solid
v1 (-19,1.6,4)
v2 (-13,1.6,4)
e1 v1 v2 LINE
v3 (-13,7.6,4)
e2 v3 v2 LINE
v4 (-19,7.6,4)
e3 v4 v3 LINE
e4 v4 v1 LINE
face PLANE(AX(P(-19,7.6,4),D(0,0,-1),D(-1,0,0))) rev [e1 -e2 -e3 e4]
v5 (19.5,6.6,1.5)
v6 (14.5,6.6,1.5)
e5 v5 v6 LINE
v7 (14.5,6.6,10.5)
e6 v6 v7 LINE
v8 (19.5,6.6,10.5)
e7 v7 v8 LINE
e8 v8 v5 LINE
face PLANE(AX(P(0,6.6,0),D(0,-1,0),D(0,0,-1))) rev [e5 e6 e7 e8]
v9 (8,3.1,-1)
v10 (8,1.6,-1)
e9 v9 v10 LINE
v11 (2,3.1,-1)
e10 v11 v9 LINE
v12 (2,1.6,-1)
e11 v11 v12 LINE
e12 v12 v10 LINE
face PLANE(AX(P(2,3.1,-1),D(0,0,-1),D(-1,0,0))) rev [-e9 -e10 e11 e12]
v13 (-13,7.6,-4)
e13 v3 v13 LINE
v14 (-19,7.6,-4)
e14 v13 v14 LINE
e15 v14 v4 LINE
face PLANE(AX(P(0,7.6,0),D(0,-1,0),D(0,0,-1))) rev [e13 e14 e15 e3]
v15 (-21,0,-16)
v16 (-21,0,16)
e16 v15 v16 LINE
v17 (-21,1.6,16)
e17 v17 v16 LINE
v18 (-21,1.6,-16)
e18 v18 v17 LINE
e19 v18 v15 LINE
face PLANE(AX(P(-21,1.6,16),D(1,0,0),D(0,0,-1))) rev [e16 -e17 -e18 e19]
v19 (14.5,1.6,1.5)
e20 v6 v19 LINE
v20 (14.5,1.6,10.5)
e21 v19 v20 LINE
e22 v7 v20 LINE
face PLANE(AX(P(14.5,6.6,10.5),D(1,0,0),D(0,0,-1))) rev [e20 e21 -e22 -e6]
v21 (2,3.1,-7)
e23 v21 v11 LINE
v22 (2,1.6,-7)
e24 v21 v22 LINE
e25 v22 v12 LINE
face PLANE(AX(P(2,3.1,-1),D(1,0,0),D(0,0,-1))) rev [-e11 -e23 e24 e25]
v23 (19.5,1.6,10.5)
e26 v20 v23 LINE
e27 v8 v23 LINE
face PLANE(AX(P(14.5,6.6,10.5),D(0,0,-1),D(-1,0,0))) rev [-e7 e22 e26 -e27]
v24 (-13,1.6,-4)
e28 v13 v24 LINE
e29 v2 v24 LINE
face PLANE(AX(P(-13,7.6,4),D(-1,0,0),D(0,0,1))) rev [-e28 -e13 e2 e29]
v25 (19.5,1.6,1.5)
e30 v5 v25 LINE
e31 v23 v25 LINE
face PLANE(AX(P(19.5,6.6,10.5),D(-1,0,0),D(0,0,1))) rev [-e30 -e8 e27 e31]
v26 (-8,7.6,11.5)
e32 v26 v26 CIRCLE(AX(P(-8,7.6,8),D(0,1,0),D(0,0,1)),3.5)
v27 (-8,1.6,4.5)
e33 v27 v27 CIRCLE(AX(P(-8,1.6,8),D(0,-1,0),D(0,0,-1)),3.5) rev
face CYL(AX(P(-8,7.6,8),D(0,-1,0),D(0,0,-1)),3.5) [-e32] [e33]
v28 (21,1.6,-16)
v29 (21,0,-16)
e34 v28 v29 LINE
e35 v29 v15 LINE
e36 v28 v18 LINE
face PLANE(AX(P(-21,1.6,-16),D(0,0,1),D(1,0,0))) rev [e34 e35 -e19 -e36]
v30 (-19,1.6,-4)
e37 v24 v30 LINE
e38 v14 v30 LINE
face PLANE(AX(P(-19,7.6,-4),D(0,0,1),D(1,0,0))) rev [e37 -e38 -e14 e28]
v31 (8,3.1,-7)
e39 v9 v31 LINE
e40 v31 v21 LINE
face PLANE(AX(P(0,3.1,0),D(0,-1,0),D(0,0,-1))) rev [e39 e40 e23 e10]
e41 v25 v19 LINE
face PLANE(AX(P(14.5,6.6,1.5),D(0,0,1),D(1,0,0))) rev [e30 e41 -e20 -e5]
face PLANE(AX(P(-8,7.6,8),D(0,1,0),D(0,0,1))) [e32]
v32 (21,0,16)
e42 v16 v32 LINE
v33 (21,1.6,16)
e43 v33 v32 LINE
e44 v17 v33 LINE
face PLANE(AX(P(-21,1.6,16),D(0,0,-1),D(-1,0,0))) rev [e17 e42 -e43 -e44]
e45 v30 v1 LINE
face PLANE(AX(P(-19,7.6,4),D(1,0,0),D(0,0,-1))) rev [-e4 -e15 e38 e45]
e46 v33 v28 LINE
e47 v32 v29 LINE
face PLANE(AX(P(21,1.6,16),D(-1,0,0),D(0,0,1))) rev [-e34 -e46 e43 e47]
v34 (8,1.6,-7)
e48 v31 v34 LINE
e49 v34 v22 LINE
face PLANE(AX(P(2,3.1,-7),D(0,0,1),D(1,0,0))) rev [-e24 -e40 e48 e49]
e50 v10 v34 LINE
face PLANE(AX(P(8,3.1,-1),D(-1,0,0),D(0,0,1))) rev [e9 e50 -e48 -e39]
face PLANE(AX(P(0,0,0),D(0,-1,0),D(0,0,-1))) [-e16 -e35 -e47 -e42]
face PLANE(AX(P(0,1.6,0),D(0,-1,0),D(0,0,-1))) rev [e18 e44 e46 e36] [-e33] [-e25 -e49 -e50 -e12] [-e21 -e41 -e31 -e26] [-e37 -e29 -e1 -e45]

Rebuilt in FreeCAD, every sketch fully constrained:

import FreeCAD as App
import Part
import Sketcher


def add_polygon(sketch, points):
    """Adds a closed chain of lines whose ends are joined by coincident constraints."""
    first, n = sketch.GeometryCount, len(points)
    for a, b in zip(points, points[1:] + points[:1]):
        sketch.addGeometry(Part.LineSegment(App.Vector(*a, 0), App.Vector(*b, 0)), False)
    for i in range(n):
        sketch.addConstraint(Sketcher.Constraint("Coincident", first + i, 2, first + (i + 1) % n, 1))

doc = App.newDocument("Part")
body = doc.addObject("PartDesign::Body", "Body")

sketch1 = body.newObject("Sketcher::SketchObject", "Sketch")
sketch1.AttachmentSupport = (doc.getObject("XZ_Plane"), [""])
sketch1.MapMode = "FlatFace"
add_polygon(sketch1, [(-21, -16), (-21, 16), (21, 16), (21, -16)])
sketch1.addConstraint(Sketcher.Constraint("Vertical", 0))
sketch1.addConstraint(Sketcher.Constraint("Horizontal", 1))
sketch1.addConstraint(Sketcher.Constraint("Vertical", 2))
sketch1.addConstraint(Sketcher.Constraint("Horizontal", 3))
sketch1.addConstraint(Sketcher.Constraint("Symmetric", 0, 2, 2, 2, -1, 1))
sketch1.addConstraint(Sketcher.Constraint("DistanceX", 1, 1, 1, 2, 42.0))
sketch1.addConstraint(Sketcher.Constraint("DistanceY", 0, 1, 0, 2, 32.0))
pad1 = body.newObject("PartDesign::Pad", "Pad")
pad1.Profile = sketch1
pad1.Length = 1.6
pad1.Reversed = True

sketch2 = body.newObject("Sketcher::SketchObject", "Sketch001")
sketch2.AttachmentSupport = (doc.getObject("XZ_Plane"), [""])
sketch2.MapMode = "FlatFace"
sketch2.AttachmentOffset = App.Placement(App.Vector(0, 0, -1.6), App.Rotation())
add_polygon(sketch2, [(2, -7), (2, -1), (8, -1), (8, -7)])
sketch2.addConstraint(Sketcher.Constraint("Vertical", 0))
sketch2.addConstraint(Sketcher.Constraint("Horizontal", 1))
sketch2.addConstraint(Sketcher.Constraint("Vertical", 2))
sketch2.addConstraint(Sketcher.Constraint("Horizontal", 3))
sketch2.addConstraint(Sketcher.Constraint("Equal", 3, 0))
sketch2.addConstraint(Sketcher.Constraint("DistanceX", 1, 1, 1, 2, 6.0))
sketch2.addConstraint(Sketcher.Constraint("DistanceX", -1, 1, 0, 2, 2.0))
sketch2.addConstraint(Sketcher.Constraint("DistanceY", 0, 2, -1, 1, 1.0))
pad2 = body.newObject("PartDesign::Pad", "Pad001")
pad2.Profile = sketch2
pad2.Length = 1.5
pad2.Reversed = True

sketch3 = body.newObject("Sketcher::SketchObject", "Sketch002")
sketch3.AttachmentSupport = (doc.getObject("XZ_Plane"), [""])
sketch3.MapMode = "FlatFace"
sketch3.AttachmentOffset = App.Placement(App.Vector(0, 0, -1.6), App.Rotation())
add_polygon(sketch3, [(14, 2), (14, 10), (20, 10), (20, 2)])
sketch3.addConstraint(Sketcher.Constraint("Vertical", 0))
sketch3.addConstraint(Sketcher.Constraint("Horizontal", 1))
sketch3.addConstraint(Sketcher.Constraint("Vertical", 2))
sketch3.addConstraint(Sketcher.Constraint("Horizontal", 3))
sketch3.addConstraint(Sketcher.Constraint("DistanceX", 1, 1, 1, 2, 5.0))
sketch3.addConstraint(Sketcher.Constraint("DistanceY", 0, 1, 0, 2, 9.0))
sketch3.addConstraint(Sketcher.Constraint("DistanceX", -1, 1, 0, 2, 14.5))
sketch3.addConstraint(Sketcher.Constraint("DistanceY", -1, 1, 0, 2, 10.5))
pad3 = body.newObject("PartDesign::Pad", "Pad002")
pad3.Profile = sketch3
pad3.Length = 5
pad3.Reversed = True

sketch4 = body.newObject("Sketcher::SketchObject", "Sketch003")
sketch4.AttachmentSupport = (doc.getObject("XZ_Plane"), [""])
sketch4.MapMode = "FlatFace"
sketch4.AttachmentOffset = App.Placement(App.Vector(0, 0, -1.6), App.Rotation())
add_polygon(sketch4, [(-19, -4), (-19, 4), (-13, 4), (-13, -4)])
sketch4.addConstraint(Sketcher.Constraint("Vertical", 0))
sketch4.addConstraint(Sketcher.Constraint("Horizontal", 1))
sketch4.addConstraint(Sketcher.Constraint("Vertical", 2))
sketch4.addConstraint(Sketcher.Constraint("Horizontal", 3))
sketch4.addConstraint(Sketcher.Constraint("DistanceX", 1, 1, 1, 2, 6.0))
sketch4.addConstraint(Sketcher.Constraint("DistanceY", 0, 1, 0, 2, 8.0))
sketch4.addConstraint(Sketcher.Constraint("DistanceX", 0, 2, -1, 1, 19.0))
sketch4.addConstraint(Sketcher.Constraint("DistanceY", -1, 1, 0, 2, 4.0))
pad4 = body.newObject("PartDesign::Pad", "Pad003")
pad4.Profile = sketch4
pad4.Length = 6
pad4.Reversed = True

sketch5 = body.newObject("Sketcher::SketchObject", "Sketch004")
sketch5.AttachmentSupport = (doc.getObject("XZ_Plane"), [""])
sketch5.MapMode = "FlatFace"
sketch5.AttachmentOffset = App.Placement(App.Vector(0, 0, -1.6), App.Rotation())
sketch5.addGeometry(Part.Circle(App.Vector(-8, 8, 0), App.Vector(0, 0, 1), 3.5), False)
sketch5.addConstraint(Sketcher.Constraint("Diameter", 0, 7.0))
sketch5.addConstraint(Sketcher.Constraint("DistanceX", 0, 3, -1, 1, 8.0))
sketch5.addConstraint(Sketcher.Constraint("DistanceY", -1, 1, 0, 3, 8.0))
pad5 = body.newObject("PartDesign::Pad", "Pad004")
pad5.Profile = sketch5
pad5.Length = 6
pad5.Reversed = True

doc.recompute()
